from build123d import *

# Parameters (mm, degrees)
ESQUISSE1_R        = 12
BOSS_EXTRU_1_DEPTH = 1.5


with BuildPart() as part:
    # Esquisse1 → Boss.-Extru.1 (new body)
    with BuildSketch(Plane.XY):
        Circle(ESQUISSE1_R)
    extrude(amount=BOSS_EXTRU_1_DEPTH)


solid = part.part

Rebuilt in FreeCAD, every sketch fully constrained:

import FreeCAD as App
import Part
import Sketcher

doc = App.newDocument("Part")
body = doc.addObject("PartDesign::Body", "Body")

sketch1 = body.newObject("Sketcher::SketchObject", "Sketch")
sketch1.AttachmentSupport = (doc.getObject("XY_Plane"), [""])
sketch1.MapMode = "FlatFace"
sketch1.addGeometry(Part.Circle(App.Vector(0, 0, 0), App.Vector(0, 0, 1), 12), False)
sketch1.addConstraint([
    Sketcher.Constraint("Coincident", 0, 3, -1, 1),
    Sketcher.Constraint("Diameter", 0, 24.0),
])
pad1 = body.newObject("PartDesign::Pad", "Pad")
pad1.Profile = sketch1
pad1.Length = 1.5

doc.recompute()
